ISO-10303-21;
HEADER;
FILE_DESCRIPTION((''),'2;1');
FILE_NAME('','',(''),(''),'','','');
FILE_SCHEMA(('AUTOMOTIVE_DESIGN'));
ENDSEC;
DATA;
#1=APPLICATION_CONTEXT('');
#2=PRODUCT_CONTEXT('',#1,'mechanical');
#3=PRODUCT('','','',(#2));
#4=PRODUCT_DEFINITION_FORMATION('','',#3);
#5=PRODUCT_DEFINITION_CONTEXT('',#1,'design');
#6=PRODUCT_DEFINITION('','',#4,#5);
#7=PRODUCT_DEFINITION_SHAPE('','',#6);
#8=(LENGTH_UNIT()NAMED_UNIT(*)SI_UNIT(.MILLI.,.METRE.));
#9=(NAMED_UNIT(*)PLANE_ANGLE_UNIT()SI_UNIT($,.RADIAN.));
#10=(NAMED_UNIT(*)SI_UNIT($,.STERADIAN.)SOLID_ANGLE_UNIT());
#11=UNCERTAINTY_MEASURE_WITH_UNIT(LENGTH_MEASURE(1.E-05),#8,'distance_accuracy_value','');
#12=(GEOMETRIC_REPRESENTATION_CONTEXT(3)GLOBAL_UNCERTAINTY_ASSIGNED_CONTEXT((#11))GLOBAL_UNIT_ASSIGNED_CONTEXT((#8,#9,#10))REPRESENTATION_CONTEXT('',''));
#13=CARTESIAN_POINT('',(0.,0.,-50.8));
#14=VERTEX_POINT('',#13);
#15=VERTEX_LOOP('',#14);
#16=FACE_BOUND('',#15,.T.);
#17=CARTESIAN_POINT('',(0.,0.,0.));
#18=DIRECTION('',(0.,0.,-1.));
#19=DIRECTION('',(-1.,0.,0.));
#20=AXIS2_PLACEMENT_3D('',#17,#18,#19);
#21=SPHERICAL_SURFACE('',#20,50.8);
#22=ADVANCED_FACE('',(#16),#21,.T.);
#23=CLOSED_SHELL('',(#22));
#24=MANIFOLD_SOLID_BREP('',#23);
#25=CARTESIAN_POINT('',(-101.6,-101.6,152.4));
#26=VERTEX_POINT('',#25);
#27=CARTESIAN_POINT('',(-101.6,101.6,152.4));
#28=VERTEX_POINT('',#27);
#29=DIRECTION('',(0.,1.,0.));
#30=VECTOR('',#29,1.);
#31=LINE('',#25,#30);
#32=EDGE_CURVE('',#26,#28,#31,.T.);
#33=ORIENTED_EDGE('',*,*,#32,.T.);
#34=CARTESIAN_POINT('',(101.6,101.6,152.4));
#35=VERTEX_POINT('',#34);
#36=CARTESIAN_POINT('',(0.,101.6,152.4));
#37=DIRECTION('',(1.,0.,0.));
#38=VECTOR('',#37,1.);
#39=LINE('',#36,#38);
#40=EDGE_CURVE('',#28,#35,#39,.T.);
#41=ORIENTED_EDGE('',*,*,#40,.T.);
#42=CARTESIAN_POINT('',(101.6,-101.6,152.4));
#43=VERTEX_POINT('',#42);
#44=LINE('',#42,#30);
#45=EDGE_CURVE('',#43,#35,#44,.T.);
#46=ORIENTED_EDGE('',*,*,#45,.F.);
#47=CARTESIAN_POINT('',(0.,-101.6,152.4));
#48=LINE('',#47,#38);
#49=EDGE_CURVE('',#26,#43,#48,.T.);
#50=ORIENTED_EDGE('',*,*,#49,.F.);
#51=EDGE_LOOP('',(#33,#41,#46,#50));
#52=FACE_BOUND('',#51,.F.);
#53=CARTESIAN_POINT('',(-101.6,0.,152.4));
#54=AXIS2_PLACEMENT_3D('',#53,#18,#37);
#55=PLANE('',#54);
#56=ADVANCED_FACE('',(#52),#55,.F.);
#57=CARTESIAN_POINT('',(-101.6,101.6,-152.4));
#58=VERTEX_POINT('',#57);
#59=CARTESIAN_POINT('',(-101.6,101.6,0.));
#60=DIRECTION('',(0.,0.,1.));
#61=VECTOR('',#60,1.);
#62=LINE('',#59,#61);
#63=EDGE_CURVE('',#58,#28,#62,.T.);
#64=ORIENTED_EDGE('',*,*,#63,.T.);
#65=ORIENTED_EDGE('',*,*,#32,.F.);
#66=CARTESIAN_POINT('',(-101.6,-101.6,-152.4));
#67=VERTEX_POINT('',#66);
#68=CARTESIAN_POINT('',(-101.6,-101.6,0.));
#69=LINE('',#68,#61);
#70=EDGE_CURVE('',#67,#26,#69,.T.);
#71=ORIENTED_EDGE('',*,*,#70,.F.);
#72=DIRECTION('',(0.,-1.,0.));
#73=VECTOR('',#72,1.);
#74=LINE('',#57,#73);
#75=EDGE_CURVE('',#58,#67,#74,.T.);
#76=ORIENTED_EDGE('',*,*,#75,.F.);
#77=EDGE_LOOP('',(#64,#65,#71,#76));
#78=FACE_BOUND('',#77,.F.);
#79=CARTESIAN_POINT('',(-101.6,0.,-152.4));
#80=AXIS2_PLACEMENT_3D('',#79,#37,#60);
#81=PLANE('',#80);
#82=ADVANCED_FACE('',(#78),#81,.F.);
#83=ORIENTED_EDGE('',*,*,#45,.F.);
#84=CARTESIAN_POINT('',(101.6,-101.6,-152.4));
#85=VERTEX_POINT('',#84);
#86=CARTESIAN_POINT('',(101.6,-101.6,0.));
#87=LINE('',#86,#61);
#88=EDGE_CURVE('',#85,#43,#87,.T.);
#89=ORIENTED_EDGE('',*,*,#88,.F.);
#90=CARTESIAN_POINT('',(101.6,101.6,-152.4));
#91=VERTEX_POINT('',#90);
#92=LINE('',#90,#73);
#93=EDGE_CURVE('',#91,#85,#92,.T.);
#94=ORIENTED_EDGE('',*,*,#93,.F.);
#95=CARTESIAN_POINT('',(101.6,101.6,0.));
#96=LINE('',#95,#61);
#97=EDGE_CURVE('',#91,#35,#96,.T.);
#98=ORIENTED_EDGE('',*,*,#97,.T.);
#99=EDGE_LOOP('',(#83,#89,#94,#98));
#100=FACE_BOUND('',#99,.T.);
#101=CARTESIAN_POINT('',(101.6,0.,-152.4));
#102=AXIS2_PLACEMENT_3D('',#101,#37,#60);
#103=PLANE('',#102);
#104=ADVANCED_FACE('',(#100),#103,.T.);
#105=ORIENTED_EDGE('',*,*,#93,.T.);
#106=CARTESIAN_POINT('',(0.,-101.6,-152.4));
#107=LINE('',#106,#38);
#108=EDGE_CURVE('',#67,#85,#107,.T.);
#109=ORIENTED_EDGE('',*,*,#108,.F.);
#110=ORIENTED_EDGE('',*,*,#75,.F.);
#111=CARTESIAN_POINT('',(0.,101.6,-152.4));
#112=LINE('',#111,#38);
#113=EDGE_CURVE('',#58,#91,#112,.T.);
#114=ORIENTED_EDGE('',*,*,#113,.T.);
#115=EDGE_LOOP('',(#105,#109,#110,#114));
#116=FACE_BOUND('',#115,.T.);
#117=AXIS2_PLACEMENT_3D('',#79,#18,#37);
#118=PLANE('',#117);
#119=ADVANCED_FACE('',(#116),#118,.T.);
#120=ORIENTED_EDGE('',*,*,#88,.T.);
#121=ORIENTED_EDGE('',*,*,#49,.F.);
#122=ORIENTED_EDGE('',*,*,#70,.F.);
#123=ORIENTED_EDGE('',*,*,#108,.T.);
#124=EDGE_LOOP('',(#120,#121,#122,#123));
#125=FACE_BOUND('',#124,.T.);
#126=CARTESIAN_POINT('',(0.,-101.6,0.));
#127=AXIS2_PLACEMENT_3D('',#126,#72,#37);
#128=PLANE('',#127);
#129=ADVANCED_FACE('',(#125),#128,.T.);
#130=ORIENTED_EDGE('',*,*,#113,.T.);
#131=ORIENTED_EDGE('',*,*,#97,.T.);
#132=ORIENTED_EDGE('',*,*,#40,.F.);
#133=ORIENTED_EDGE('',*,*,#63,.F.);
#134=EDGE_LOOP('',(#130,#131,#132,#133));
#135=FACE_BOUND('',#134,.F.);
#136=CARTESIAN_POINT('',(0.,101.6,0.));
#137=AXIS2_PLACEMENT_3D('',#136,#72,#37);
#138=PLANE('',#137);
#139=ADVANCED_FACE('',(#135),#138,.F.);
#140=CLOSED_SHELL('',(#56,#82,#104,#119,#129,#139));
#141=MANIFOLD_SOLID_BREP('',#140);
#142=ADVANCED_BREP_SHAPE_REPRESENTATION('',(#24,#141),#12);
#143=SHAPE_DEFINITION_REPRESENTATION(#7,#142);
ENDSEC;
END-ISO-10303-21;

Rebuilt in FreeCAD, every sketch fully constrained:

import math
import FreeCAD as App
import Part
import Sketcher
Q = App.Units.Quantity

doc = App.newDocument("Part")
body = doc.addObject("PartDesign::Body", "Body")

sketch1 = doc.addObject("Sketcher::SketchObject", "Sketch")
body.addObject(sketch1)
sketch1.AttachmentSupport = (doc.XZ_Plane, [""])
sketch1.MapMode = "FlatFace"
sketch1.addGeometry([
    Part.LineSegment(App.Vector(-101.6, 152.4, 0), App.Vector(-101.6, -152.4, 0)),
    Part.LineSegment(App.Vector(-101.6, -152.4, 0), App.Vector(101.6, -152.4, 0)),
    Part.LineSegment(App.Vector(101.6, -152.4, 0), App.Vector(101.6, 152.4, 0)),
    Part.LineSegment(App.Vector(101.6, 152.4, 0), App.Vector(-101.6, 152.4, 0)),
], False)
sketch1.addConstraint([
    Sketcher.Constraint("Coincident", 0, 2, 1, 1),
    Sketcher.Constraint("Coincident", 1, 2, 2, 1),
    Sketcher.Constraint("Coincident", 2, 2, 3, 1),
    Sketcher.Constraint("Coincident", 3, 2, 0, 1),
    Sketcher.Constraint("Vertical", 0),
    Sketcher.Constraint("Horizontal", 1),
    Sketcher.Constraint("Vertical", 2),
    Sketcher.Constraint("Horizontal", 3),
    Sketcher.Constraint("Symmetric", 0, 2, 2, 2, -1, 1),
    Sketcher.Constraint("DistanceX", 1, 1, 1, 2, Q("8 in")),
    Sketcher.Constraint("DistanceY", 0, 2, 0, 1, Q("12 in")),
])
pad1 = doc.addObject("PartDesign::Pad", "Pad")
body.addObject(pad1)
pad1.Profile = sketch1
pad1.Length = Q("8 in")
pad1.Midplane = True
body2 = doc.addObject("PartDesign::Body", "Body001")

sketch2 = doc.addObject("Sketcher::SketchObject", "Sketch001")
body2.addObject(sketch2)
sketch2.AttachmentSupport = (doc.getObject("XZ_Plane001"), [""])
sketch2.MapMode = "FlatFace"
sketch2.addGeometry([
    Part.LineSegment(App.Vector(0, -50.8, 0), App.Vector(0, 50.8, 0)),
    Part.ArcOfCircle(Part.Circle(App.Vector(0, 0, 0), App.Vector(0, 0, 1), 50.8), math.radians(90), math.radians(270)),
], False)
sketch2.addConstraint([
    Sketcher.Constraint("Coincident", 0, 1, 1, 2),
    Sketcher.Constraint("Coincident", 1, 1, 0, 2),
    Sketcher.Constraint("Vertical", 0),
    Sketcher.Constraint("Coincident", 1, 3, -1, 1),
    Sketcher.Constraint("PointOnObject", 0, 1, -2),
    Sketcher.Constraint("Radius", 1, Q("2 in")),
])
revolution = doc.addObject("PartDesign::Revolution", "Revolution")
body2.addObject(revolution)
revolution.Profile = sketch2
revolution.ReferenceAxis = (sketch2, ["V_Axis"])
revolution.Angle = 360

doc.recompute()
